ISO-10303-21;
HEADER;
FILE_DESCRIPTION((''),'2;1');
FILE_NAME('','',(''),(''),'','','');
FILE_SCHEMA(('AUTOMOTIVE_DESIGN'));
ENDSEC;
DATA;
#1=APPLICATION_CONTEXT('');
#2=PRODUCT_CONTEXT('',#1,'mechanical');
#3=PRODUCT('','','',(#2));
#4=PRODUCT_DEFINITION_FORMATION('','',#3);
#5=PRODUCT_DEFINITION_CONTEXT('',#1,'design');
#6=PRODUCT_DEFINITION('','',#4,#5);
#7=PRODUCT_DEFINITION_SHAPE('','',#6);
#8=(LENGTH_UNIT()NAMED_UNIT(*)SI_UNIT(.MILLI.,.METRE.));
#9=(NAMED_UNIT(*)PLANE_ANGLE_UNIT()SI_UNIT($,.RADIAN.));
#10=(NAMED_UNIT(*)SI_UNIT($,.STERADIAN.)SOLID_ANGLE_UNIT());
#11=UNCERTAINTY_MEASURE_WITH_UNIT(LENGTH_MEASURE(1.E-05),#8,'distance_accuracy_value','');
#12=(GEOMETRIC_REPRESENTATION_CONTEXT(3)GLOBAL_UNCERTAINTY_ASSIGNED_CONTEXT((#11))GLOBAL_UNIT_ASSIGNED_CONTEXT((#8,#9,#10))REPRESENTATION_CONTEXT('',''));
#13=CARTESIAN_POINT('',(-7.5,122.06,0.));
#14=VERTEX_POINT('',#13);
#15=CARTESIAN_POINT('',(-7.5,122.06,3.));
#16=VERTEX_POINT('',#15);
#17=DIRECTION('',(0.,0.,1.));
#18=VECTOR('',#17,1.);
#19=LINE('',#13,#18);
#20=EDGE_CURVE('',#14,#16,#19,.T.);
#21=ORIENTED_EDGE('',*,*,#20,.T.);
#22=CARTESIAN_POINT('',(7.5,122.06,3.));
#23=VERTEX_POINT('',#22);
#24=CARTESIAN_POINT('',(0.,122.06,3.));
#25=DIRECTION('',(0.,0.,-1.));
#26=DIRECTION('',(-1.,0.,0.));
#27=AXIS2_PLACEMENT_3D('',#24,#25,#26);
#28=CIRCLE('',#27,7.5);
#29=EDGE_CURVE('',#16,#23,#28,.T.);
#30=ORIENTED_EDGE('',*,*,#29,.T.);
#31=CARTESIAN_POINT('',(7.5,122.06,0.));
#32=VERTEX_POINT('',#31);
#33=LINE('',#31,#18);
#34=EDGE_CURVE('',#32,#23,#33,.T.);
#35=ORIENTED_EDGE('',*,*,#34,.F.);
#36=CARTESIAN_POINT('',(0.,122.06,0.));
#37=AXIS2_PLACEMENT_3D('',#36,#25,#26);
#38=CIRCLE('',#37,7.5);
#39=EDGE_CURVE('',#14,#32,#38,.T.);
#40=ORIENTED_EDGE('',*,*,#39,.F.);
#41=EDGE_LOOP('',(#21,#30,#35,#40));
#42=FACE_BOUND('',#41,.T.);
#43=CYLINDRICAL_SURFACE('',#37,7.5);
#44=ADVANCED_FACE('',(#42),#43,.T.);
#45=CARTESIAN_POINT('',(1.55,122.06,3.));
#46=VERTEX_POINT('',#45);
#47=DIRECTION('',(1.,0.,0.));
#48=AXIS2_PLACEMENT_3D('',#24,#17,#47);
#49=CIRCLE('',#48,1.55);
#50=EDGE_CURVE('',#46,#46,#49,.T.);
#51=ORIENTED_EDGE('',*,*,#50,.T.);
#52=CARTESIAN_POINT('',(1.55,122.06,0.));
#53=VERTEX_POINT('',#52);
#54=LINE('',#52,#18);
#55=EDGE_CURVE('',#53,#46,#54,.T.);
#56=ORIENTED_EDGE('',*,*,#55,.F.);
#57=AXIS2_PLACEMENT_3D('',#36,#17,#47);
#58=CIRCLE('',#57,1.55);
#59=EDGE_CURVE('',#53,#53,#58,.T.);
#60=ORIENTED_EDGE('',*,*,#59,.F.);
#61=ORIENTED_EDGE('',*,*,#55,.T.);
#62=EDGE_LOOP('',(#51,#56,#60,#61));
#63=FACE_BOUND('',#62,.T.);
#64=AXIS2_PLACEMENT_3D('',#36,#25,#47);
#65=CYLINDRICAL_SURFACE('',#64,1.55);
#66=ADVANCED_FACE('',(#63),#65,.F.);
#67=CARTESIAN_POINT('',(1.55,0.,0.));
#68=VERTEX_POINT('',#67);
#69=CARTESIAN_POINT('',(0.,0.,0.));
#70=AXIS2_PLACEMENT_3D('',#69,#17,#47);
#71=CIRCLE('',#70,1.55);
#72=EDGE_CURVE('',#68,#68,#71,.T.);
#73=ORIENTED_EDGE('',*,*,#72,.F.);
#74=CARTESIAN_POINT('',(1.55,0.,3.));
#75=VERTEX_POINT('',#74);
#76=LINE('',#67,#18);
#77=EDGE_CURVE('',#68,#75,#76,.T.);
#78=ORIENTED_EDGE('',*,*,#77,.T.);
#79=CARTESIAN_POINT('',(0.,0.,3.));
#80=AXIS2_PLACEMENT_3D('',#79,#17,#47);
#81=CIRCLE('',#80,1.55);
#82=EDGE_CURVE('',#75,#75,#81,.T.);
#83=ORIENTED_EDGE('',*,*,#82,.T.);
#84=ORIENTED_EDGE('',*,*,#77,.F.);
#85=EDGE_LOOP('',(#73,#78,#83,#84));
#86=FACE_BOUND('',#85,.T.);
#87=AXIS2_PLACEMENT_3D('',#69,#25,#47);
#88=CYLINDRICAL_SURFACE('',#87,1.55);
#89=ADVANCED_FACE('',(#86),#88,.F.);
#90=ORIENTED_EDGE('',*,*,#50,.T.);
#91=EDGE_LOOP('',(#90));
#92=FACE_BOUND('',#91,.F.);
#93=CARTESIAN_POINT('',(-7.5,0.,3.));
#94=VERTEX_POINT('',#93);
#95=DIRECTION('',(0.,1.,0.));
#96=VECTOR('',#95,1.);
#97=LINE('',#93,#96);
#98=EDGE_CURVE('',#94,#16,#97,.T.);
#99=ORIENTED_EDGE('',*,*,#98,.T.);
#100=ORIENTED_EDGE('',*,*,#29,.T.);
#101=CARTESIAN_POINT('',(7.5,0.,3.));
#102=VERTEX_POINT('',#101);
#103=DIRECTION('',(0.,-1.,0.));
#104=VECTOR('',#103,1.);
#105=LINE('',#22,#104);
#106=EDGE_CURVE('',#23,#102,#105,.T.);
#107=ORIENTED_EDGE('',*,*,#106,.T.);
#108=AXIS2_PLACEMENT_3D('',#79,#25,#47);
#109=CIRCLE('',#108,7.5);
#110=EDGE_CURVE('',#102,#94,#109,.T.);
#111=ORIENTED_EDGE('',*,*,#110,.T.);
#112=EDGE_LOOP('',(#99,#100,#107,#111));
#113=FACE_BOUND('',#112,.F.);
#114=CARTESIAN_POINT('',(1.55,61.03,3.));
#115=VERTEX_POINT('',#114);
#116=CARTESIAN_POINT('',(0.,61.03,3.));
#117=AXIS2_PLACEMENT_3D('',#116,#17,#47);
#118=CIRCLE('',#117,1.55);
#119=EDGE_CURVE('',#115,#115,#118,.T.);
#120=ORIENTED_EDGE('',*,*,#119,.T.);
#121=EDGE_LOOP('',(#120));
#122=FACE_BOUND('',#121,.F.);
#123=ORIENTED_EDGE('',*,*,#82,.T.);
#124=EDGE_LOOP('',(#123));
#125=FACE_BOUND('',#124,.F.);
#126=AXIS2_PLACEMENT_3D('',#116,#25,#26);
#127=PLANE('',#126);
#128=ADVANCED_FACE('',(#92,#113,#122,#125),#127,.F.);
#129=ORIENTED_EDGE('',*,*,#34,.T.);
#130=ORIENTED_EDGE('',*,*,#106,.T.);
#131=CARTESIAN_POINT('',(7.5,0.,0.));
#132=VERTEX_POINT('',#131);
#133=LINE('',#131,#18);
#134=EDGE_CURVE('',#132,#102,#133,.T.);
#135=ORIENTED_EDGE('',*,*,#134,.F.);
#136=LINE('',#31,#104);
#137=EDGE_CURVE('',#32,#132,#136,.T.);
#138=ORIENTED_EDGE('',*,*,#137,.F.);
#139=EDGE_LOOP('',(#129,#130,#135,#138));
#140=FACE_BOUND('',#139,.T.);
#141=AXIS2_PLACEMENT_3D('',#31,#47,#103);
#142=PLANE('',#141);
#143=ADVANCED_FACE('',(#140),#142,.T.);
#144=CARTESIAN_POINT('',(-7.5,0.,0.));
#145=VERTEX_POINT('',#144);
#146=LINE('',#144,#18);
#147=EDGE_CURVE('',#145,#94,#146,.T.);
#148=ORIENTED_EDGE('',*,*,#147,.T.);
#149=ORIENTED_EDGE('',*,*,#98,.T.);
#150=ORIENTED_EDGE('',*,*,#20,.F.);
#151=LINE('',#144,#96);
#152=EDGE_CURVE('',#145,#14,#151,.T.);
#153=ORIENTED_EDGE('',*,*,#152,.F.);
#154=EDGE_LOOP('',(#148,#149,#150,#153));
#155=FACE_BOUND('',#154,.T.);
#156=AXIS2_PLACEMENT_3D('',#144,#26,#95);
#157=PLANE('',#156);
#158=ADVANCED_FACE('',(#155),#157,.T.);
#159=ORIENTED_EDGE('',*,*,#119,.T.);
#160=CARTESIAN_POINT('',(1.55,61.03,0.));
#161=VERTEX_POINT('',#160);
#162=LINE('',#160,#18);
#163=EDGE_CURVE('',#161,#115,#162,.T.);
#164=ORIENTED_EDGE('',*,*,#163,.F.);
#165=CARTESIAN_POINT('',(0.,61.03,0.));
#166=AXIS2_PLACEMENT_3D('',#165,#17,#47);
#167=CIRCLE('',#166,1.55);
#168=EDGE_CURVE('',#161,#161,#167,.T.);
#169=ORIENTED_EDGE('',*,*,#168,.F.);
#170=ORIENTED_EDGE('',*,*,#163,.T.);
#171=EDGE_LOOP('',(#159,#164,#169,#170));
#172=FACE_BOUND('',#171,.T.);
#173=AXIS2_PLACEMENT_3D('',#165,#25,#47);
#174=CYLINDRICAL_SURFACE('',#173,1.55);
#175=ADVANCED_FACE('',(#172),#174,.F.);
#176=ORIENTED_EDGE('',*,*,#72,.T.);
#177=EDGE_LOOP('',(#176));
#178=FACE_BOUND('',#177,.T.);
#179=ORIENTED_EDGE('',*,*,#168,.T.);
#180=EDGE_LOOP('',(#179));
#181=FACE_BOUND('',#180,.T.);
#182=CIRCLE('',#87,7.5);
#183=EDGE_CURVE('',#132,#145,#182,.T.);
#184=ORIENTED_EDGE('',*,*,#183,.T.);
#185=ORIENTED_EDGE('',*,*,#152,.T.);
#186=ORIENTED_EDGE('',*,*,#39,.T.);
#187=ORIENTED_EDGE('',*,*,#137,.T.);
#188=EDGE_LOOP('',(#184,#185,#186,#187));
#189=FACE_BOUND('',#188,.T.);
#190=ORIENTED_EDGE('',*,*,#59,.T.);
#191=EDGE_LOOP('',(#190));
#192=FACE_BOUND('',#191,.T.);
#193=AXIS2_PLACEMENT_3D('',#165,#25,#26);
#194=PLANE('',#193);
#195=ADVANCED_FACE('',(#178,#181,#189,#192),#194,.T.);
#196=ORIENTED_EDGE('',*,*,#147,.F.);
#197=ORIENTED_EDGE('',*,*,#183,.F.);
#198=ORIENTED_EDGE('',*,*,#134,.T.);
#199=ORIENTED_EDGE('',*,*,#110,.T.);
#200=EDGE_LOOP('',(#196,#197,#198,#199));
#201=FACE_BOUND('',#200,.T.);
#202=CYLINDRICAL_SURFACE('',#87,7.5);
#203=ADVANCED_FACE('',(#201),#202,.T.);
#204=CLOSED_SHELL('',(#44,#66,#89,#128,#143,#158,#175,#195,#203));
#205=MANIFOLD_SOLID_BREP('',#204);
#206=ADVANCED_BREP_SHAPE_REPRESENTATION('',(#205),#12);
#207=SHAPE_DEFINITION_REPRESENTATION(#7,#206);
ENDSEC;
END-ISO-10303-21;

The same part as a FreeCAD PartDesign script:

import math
import FreeCAD as App
import Part
import Sketcher
from FreeCAD import Vector

doc = App.newDocument("Part")
body = doc.addObject("PartDesign::Body", "Body")

sketch1 = body.newObject("Sketcher::SketchObject", "Sketch")
sketch1.AttachmentSupport = (doc.getObject("XY_Plane"), [""])
sketch1.MapMode = "FlatFace"
sketch1.addGeometry(Part.LineSegment(Vector(-7.5, 122.1, 0), Vector(-7.5, 0, 0)), False)
sketch1.addGeometry(Part.ArcOfCircle(Part.Circle(Vector(0, 0, 0), Vector(0, 0, 1), 7.5), math.radians(180), math.radians(360)), False)
sketch1.addGeometry(Part.LineSegment(Vector(7.5, 0, 0), Vector(7.5, 122.1, 0)), False)
sketch1.addGeometry(Part.ArcOfCircle(Part.Circle(Vector(0, 122.1, 0), Vector(0, 0, 1), 7.5), math.radians(0), math.radians(180)), False)
sketch1.addGeometry(Part.Circle(Vector(0, 0, 0), Vector(0, 0, 1), 1.6), False)
sketch1.addGeometry(Part.Circle(Vector(0, 61, 0), Vector(0, 0, 1), 1.6), False)
sketch1.addGeometry(Part.Circle(Vector(0, 122.1, 0), Vector(0, 0, 1), 1.6), False)
sketch1.addConstraint(Sketcher.Constraint("Tangent", 0, 2, 1, 1))
sketch1.addConstraint(Sketcher.Constraint("Tangent", 1, 2, 2, 1))
sketch1.addConstraint(Sketcher.Constraint("Tangent", 2, 2, 3, 1))
sketch1.addConstraint(Sketcher.Constraint("Tangent", 3, 2, 0, 1))
sketch1.addConstraint(Sketcher.Constraint("Vertical", 0))
sketch1.addConstraint(Sketcher.Constraint("Vertical", 2))
sketch1.addConstraint(Sketcher.Constraint("Coincident", 1, 3, -1, 1))
sketch1.addConstraint(Sketcher.Constraint("Coincident", 4, 3, -1, 1))
sketch1.addConstraint(Sketcher.Constraint("Coincident", 6, 3, 3, 3))
sketch1.addConstraint(Sketcher.Constraint("Equal", 4, 5))
sketch1.addConstraint(Sketcher.Constraint("Equal", 5, 6))
sketch1.addConstraint(Sketcher.Constraint("PointOnObject", 5, 3, -2))
sketch1.addConstraint(Sketcher.Constraint("Diameter", 4, 3.1))
sketch1.addConstraint(Sketcher.Constraint("Radius", 1, 7.5))
sketch1.addConstraint(Sketcher.Constraint("DistanceY", 0, 2, 0, 1, 122.06))
sketch1.addConstraint(Sketcher.Constraint("DistanceY", -1, 1, 5, 3, 61.03))
pad1 = body.newObject("PartDesign::Pad", "Pad")
pad1.Profile = sketch1
pad1.Length = 3

doc.recompute()
